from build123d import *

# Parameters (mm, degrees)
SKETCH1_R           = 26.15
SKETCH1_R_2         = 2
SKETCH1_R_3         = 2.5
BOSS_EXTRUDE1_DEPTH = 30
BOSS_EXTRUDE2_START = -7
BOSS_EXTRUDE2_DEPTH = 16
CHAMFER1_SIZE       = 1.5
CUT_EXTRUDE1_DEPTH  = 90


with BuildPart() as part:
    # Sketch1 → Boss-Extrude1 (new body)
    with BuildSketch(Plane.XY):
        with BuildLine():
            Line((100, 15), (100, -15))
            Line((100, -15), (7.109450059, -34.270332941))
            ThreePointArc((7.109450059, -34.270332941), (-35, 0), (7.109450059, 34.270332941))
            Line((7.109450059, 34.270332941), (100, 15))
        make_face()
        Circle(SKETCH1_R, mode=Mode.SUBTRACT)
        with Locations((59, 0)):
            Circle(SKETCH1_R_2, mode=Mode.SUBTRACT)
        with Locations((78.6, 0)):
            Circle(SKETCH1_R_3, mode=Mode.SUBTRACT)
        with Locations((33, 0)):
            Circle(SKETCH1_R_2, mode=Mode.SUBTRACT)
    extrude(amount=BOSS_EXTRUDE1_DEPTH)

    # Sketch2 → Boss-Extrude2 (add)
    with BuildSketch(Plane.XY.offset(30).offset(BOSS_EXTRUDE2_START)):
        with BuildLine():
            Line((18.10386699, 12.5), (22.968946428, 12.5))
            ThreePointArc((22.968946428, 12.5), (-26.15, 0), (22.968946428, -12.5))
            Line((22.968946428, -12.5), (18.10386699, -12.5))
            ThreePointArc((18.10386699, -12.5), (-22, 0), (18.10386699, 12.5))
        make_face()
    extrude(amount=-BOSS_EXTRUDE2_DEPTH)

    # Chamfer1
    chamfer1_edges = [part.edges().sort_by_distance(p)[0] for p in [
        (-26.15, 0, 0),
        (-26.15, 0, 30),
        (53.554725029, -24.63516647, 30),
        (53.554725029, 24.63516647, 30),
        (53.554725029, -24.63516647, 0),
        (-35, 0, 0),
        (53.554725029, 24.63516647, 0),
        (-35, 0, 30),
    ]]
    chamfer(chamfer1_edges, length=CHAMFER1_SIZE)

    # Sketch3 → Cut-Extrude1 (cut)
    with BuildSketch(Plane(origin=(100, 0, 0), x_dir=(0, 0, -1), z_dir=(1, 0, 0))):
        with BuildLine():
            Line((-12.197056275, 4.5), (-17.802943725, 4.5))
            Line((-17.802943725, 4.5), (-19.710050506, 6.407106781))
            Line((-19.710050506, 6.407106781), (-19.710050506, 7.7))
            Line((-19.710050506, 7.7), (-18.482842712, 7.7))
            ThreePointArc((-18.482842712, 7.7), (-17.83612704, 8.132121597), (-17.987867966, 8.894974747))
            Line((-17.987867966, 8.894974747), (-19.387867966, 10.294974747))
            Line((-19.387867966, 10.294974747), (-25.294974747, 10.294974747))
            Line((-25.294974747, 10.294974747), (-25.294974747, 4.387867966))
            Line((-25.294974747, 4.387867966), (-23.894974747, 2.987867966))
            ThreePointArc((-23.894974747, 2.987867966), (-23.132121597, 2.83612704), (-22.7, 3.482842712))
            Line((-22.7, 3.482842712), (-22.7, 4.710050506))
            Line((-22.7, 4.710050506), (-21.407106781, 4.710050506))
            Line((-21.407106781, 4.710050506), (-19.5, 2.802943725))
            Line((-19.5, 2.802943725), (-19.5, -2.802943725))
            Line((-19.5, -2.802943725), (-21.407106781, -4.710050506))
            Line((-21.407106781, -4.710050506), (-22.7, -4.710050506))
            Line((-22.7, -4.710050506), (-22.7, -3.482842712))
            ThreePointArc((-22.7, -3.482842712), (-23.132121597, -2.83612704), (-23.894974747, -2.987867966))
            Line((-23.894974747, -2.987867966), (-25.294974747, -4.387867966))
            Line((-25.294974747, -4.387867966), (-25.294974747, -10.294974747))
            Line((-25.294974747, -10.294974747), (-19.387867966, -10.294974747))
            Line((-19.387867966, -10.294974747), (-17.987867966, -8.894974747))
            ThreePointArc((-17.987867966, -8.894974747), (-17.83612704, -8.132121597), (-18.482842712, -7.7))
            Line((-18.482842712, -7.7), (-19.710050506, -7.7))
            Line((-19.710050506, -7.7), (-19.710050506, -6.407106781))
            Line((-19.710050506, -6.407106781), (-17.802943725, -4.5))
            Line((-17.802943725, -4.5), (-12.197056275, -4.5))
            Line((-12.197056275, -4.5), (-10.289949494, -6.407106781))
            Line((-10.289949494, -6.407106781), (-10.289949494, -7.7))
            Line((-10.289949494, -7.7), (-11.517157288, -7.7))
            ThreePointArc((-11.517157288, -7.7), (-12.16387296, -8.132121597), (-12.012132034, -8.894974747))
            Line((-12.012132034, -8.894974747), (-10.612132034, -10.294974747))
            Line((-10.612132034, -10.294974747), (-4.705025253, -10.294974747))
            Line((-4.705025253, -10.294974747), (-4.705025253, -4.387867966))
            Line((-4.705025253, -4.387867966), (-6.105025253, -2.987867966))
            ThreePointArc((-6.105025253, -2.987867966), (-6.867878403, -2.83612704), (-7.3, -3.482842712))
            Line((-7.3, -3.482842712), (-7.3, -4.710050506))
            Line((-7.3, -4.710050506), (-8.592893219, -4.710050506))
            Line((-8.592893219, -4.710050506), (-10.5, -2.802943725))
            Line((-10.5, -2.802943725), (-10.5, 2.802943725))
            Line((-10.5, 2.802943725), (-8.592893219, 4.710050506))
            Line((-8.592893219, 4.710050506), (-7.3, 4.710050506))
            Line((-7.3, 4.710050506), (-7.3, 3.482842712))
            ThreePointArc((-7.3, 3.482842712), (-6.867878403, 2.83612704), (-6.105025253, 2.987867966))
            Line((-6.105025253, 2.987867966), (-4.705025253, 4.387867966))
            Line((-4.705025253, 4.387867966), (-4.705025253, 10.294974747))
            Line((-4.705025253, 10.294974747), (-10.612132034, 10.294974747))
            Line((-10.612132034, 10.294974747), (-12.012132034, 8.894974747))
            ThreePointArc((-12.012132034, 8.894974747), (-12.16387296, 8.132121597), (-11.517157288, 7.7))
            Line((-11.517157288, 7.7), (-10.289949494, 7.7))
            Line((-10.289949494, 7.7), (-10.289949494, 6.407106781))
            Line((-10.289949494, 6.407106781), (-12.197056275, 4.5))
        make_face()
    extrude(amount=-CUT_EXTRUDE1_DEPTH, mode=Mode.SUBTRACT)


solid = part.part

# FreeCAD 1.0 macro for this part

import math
import FreeCAD as App
import Part
import Sketcher
from FreeCAD import Vector
Q = App.Units.Quantity


def edges_at(feature, points):
    """Names of the edges that pass closest to the given points."""
    edges = feature.Shape.Edges
    near = lambda p: min(range(len(edges)), key=lambda i: edges[i].distToShape(Part.Vertex(*p))[0])
    return sorted({f"Edge{near(p) + 1}" for p in points})

doc = App.newDocument("Part")
body = doc.addObject("PartDesign::Body", "Body")

sketch1 = doc.addObject("Sketcher::SketchObject", "Sketch")
body.addObject(sketch1)
sketch1.AttachmentSupport = (doc.XY_Plane, [""])
sketch1.MapMode = "FlatFace"
sketch1.addGeometry([
    Part.LineSegment(Vector(100, -15, 0), Vector(100, 15, 0)),
    Part.LineSegment(Vector(100, 15, 0), Vector(7.1, 34.3, 0)),
    Part.ArcOfCircle(Part.Circle(Vector(0, 0, 0), Vector(0, 0, 1), 35), math.radians(78), math.radians(282)),
    Part.LineSegment(Vector(7.1, -34.3, 0), Vector(100, -15, 0)),
    Part.Circle(Vector(78.6, 0, 0), Vector(0, 0, 1), 2.5),
    Part.Circle(Vector(59, 0, 0), Vector(0, 0, 1), 2),
    Part.Circle(Vector(33, 0, 0), Vector(0, 0, 1), 2),
    Part.Circle(Vector(0, 0, 0), Vector(0, 0, 1), 26.1),
], False)
sketch1.addConstraint([
    Sketcher.Constraint("Coincident", 0, 2, 1, 1),
    Sketcher.Constraint("Tangent", 1, 2, 2, 1),
    Sketcher.Constraint("Tangent", 2, 2, 3, 1),
    Sketcher.Constraint("Coincident", 3, 2, 0, 1),
    Sketcher.Constraint("Vertical", 0),
    Sketcher.Constraint("Coincident", 2, 3, -1, 1),
    Sketcher.Constraint("Coincident", 7, 3, -1, 1),
    Sketcher.Constraint("Equal", 5, 6),
    Sketcher.Constraint("PointOnObject", 4, 3, -1),
    Sketcher.Constraint("PointOnObject", 5, 3, -1),
    Sketcher.Constraint("PointOnObject", 6, 3, -1),
    Sketcher.Constraint("Vertical", 1, 2, 2, 2),
    Sketcher.Constraint("Diameter", 4, Q("5 mm")),
    Sketcher.Constraint("Diameter", 5, Q("4 mm")),
    Sketcher.Constraint("Radius", 2, Q("35 mm")),
    Sketcher.Constraint("Diameter", 7, Q("52.3 mm")),
    Sketcher.Constraint("DistanceY", 0, 1, 0, 2, Q("30 mm")),
    Sketcher.Constraint("DistanceX", -1, 1, 5, 3, Q("59 mm")),
    Sketcher.Constraint("DistanceX", -1, 1, 6, 3, Q("33 mm")),
    Sketcher.Constraint("DistanceX", -1, 1, 0, 2, Q("100 mm")),
    Sketcher.Constraint("DistanceX", -1, 1, 4, 3, Q("78.6 mm")),
])
pad1 = doc.addObject("PartDesign::Pad", "Pad")
body.addObject(pad1)
pad1.Profile = sketch1
pad1.Length = 30

sketch2 = doc.addObject("Sketcher::SketchObject", "Sketch001")
body.addObject(sketch2)
sketch2.AttachmentSupport = (doc.XY_Plane, [""])
sketch2.MapMode = "FlatFace"
sketch2.AttachmentOffset = App.Placement(Vector(0, 0, 23), App.Rotation())
sketch2.addGeometry([
    Part.LineSegment(Vector(18.1, 12.5, 0), Vector(23, 12.5, 0)),
    Part.ArcOfCircle(Part.Circle(Vector(0, 0, 0), Vector(0, 0, 1), 26.1), math.radians(29), math.radians(331)),
    Part.LineSegment(Vector(23, -12.5, 0), Vector(18.1, -12.5, 0)),
    Part.ArcOfCircle(Part.Circle(Vector(0, 0, 0), Vector(0, 0, 1), 22), math.radians(35), math.radians(325)),
], False)
sketch2.addConstraint([
    Sketcher.Constraint("Coincident", 0, 2, 1, 1),
    Sketcher.Constraint("Coincident", 1, 2, 2, 1),
    Sketcher.Constraint("Coincident", 2, 2, 3, 2),
    Sketcher.Constraint("Coincident", 3, 1, 0, 1),
    Sketcher.Constraint("Horizontal", 0),
    Sketcher.Constraint("Horizontal", 2),
    Sketcher.Constraint("Coincident", 1, 3, -1, 1),
    Sketcher.Constraint("Coincident", 3, 3, -1, 1),
    Sketcher.Constraint("Vertical", 0, 2, 1, 2),
    Sketcher.Constraint("Radius", 3, Q("22 mm")),
    Sketcher.Constraint("Radius", 1, Q("26.15 mm")),
    Sketcher.Constraint("DistanceY", 1, 2, 0, 2, Q("25 mm")),
])
pad2 = doc.addObject("PartDesign::Pad", "Pad001")
body.addObject(pad2)
pad2.Profile = sketch2
pad2.Length = 16
pad2.Reversed = True
doc.recompute()

chamfer = doc.addObject("PartDesign::Chamfer", "Chamfer")
body.addObject(chamfer)
chamfer.Base = (pad2, edges_at(pad2, [
    (-26.15, 0, 0),
    (-26.15, 0, 30),
    (53.555, -24.635, 30),
    (53.555, 24.635, 30),
    (53.555, -24.635, 0),
    (-35, 0, 0),
    (53.555, 24.635, 0),
    (-35, 0, 30),
]))
chamfer.Size = 1.5

sketch3 = doc.addObject("Sketcher::SketchObject", "Sketch002")
body.addObject(sketch3)
sketch3.AttachmentSupport = (doc.YZ_Plane, [""])
sketch3.MapMode = "FlatFace"
sketch3.AttachmentOffset = App.Placement(Vector(0, 0, 100), App.Rotation())
sketch3.addGeometry([
    Part.LineSegment(Vector(4.5, 12.2, 0), Vector(4.5, 17.8, 0)),
    Part.LineSegment(Vector(4.5, 17.8, 0), Vector(6.4, 19.7, 0)),
    Part.LineSegment(Vector(6.4, 19.7, 0), Vector(7.7, 19.7, 0)),
    Part.LineSegment(Vector(7.7, 19.7, 0), Vector(7.7, 18.5, 0)),
    Part.ArcOfCircle(Part.Circle(Vector(8.4, 18.5, 0), Vector(0, 0, 1), 0.7), math.radians(-180), math.radians(-45)),
    Part.LineSegment(Vector(8.9, 18, 0), Vector(10.3, 19.4, 0)),
    Part.LineSegment(Vector(10.3, 19.4, 0), Vector(10.3, 25.3, 0)),
    Part.LineSegment(Vector(10.3, 25.3, 0), Vector(4.4, 25.3, 0)),
    Part.LineSegment(Vector(4.4, 25.3, 0), Vector(3, 23.9, 0)),
    Part.ArcOfCircle(Part.Circle(Vector(3.5, 23.4, 0), Vector(0, 0, 1), 0.7), math.radians(135), math.radians(270)),
    Part.LineSegment(Vector(3.5, 22.7, 0), Vector(4.7, 22.7, 0)),
    Part.LineSegment(Vector(4.7, 22.7, 0), Vector(4.7, 21.4, 0)),
    Part.LineSegment(Vector(4.7, 21.4, 0), Vector(2.8, 19.5, 0)),
    Part.LineSegment(Vector(2.8, 19.5, 0), Vector(-2.8, 19.5, 0)),
    Part.LineSegment(Vector(-2.8, 19.5, 0), Vector(-4.7, 21.4, 0)),
    Part.LineSegment(Vector(-4.7, 21.4, 0), Vector(-4.7, 22.7, 0)),
    Part.LineSegment(Vector(-4.7, 22.7, 0), Vector(-3.5, 22.7, 0)),
    Part.ArcOfCircle(Part.Circle(Vector(-3.5, 23.4, 0), Vector(0, 0, 1), 0.7), math.radians(-90), math.radians(45)),
    Part.LineSegment(Vector(-3, 23.9, 0), Vector(-4.4, 25.3, 0)),
    Part.LineSegment(Vector(-4.4, 25.3, 0), Vector(-10.3, 25.3, 0)),
    Part.LineSegment(Vector(-10.3, 25.3, 0), Vector(-10.3, 19.4, 0)),
    Part.LineSegment(Vector(-10.3, 19.4, 0), Vector(-8.9, 18, 0)),
    Part.ArcOfCircle(Part.Circle(Vector(-8.4, 18.5, 0), Vector(0, 0, 1), 0.7), math.radians(-135), math.radians(0)),
    Part.LineSegment(Vector(-7.7, 18.5, 0), Vector(-7.7, 19.7, 0)),
    Part.LineSegment(Vector(-7.7, 19.7, 0), Vector(-6.4, 19.7, 0)),
    Part.LineSegment(Vector(-6.4, 19.7, 0), Vector(-4.5, 17.8, 0)),
    Part.LineSegment(Vector(-4.5, 17.8, 0), Vector(-4.5, 12.2, 0)),
    Part.LineSegment(Vector(-4.5, 12.2, 0), Vector(-6.4, 10.3, 0)),
    Part.LineSegment(Vector(-6.4, 10.3, 0), Vector(-7.7, 10.3, 0)),
    Part.LineSegment(Vector(-7.7, 10.3, 0), Vector(-7.7, 11.5, 0)),
    Part.ArcOfCircle(Part.Circle(Vector(-8.4, 11.5, 0), Vector(0, 0, 1), 0.7), math.radians(0), math.radians(135)),
    Part.LineSegment(Vector(-8.9, 12, 0), Vector(-10.3, 10.6, 0)),
    Part.LineSegment(Vector(-10.3, 10.6, 0), Vector(-10.3, 4.7, 0)),
    Part.LineSegment(Vector(-10.3, 4.7, 0), Vector(-4.4, 4.7, 0)),
    Part.LineSegment(Vector(-4.4, 4.7, 0), Vector(-3, 6.1, 0)),
    Part.ArcOfCircle(Part.Circle(Vector(-3.5, 6.6, 0), Vector(0, 0, 1), 0.7), math.radians(-45), math.radians(90)),
    Part.LineSegment(Vector(-3.5, 7.3, 0), Vector(-4.7, 7.3, 0)),
    Part.LineSegment(Vector(-4.7, 7.3, 0), Vector(-4.7, 8.6, 0)),
    Part.LineSegment(Vector(-4.7, 8.6, 0), Vector(-2.8, 10.5, 0)),
    Part.LineSegment(Vector(-2.8, 10.5, 0), Vector(2.8, 10.5, 0)),
    Part.LineSegment(Vector(2.8, 10.5, 0), Vector(4.7, 8.6, 0)),
    Part.LineSegment(Vector(4.7, 8.6, 0), Vector(4.7, 7.3, 0)),
    Part.LineSegment(Vector(4.7, 7.3, 0), Vector(3.5, 7.3, 0)),
    Part.ArcOfCircle(Part.Circle(Vector(3.5, 6.6, 0), Vector(0, 0, 1), 0.7), math.radians(90), math.radians(225)),
    Part.LineSegment(Vector(3, 6.1, 0), Vector(4.4, 4.7, 0)),
    Part.LineSegment(Vector(4.4, 4.7, 0), Vector(10.3, 4.7, 0)),
    Part.LineSegment(Vector(10.3, 4.7, 0), Vector(10.3, 10.6, 0)),
    Part.LineSegment(Vector(10.3, 10.6, 0), Vector(8.9, 12, 0)),
    Part.ArcOfCircle(Part.Circle(Vector(8.4, 11.5, 0), Vector(0, 0, 1), 0.7), math.radians(45), math.radians(180)),
    Part.LineSegment(Vector(7.7, 11.5, 0), Vector(7.7, 10.3, 0)),
    Part.LineSegment(Vector(7.7, 10.3, 0), Vector(6.4, 10.3, 0)),
    Part.LineSegment(Vector(6.4, 10.3, 0), Vector(4.5, 12.2, 0)),
], False)
sketch3.addConstraint([
    Sketcher.Constraint("Coincident", 0, 2, 1, 1),
    Sketcher.Constraint("Coincident", 1, 2, 2, 1),
    Sketcher.Constraint("Coincident", 2, 2, 3, 1),
    Sketcher.Constraint("Tangent", 3, 2, 4, 1),
    Sketcher.Constraint("Tangent", 4, 2, 5, 1),
    Sketcher.Constraint("Coincident", 5, 2, 6, 1),
    Sketcher.Constraint("Coincident", 6, 2, 7, 1),
    Sketcher.Constraint("Coincident", 7, 2, 8, 1),
    Sketcher.Constraint("Tangent", 8, 2, 9, 1),
    Sketcher.Constraint("Tangent", 9, 2, 10, 1),
    Sketcher.Constraint("Coincident", 10, 2, 11, 1),
    Sketcher.Constraint("Coincident", 11, 2, 12, 1),
    Sketcher.Constraint("Coincident", 12, 2, 13, 1),
    Sketcher.Constraint("Coincident", 13, 2, 14, 1),
    Sketcher.Constraint("Coincident", 14, 2, 15, 1),
    Sketcher.Constraint("Coincident", 15, 2, 16, 1),
    Sketcher.Constraint("Tangent", 16, 2, 17, 1),
    Sketcher.Constraint("Tangent", 17, 2, 18, 1),
    Sketcher.Constraint("Coincident", 18, 2, 19, 1),
    Sketcher.Constraint("Coincident", 19, 2, 20, 1),
    Sketcher.Constraint("Coincident", 20, 2, 21, 1),
    Sketcher.Constraint("Tangent", 21, 2, 22, 1),
    Sketcher.Constraint("Tangent", 22, 2, 23, 1),
    Sketcher.Constraint("Coincident", 23, 2, 24, 1),
    Sketcher.Constraint("Coincident", 24, 2, 25, 1),
    Sketcher.Constraint("Coincident", 25, 2, 26, 1),
    Sketcher.Constraint("Coincident", 26, 2, 27, 1),
    Sketcher.Constraint("Coincident", 27, 2, 28, 1),
    Sketcher.Constraint("Coincident", 28, 2, 29, 1),
    Sketcher.Constraint("Tangent", 29, 2, 30, 1),
    Sketcher.Constraint("Tangent", 30, 2, 31, 1),
    Sketcher.Constraint("Coincident", 31, 2, 32, 1),
    Sketcher.Constraint("Coincident", 32, 2, 33, 1),
    Sketcher.Constraint("Coincident", 33, 2, 34, 1),
    Sketcher.Constraint("Tangent", 34, 2, 35, 1),
    Sketcher.Constraint("Tangent", 35, 2, 36, 1),
    Sketcher.Constraint("Coincident", 36, 2, 37, 1),
    Sketcher.Constraint("Coincident", 37, 2, 38, 1),
    Sketcher.Constraint("Coincident", 38, 2, 39, 1),
    Sketcher.Constraint("Coincident", 39, 2, 40, 1),
    Sketcher.Constraint("Coincident", 40, 2, 41, 1),
    Sketcher.Constraint("Coincident", 41, 2, 42, 1),
    Sketcher.Constraint("Tangent", 42, 2, 43, 1),
    Sketcher.Constraint("Tangent", 43, 2, 44, 1),
    Sketcher.Constraint("Coincident", 44, 2, 45, 1),
    Sketcher.Constraint("Coincident", 45, 2, 46, 1),
    Sketcher.Constraint("Coincident", 46, 2, 47, 1),
    Sketcher.Constraint("Tangent", 47, 2, 48, 1),
    Sketcher.Constraint("Tangent", 48, 2, 49, 1),
    Sketcher.Constraint("Coincident", 49, 2, 50, 1),
    Sketcher.Constraint("Coincident", 50, 2, 51, 1),
    Sketcher.Constraint("Coincident", 51, 2, 0, 1),
    Sketcher.Constraint("Vertical", 0),
    Sketcher.Constraint("Horizontal", 2),
    Sketcher.Constraint("Vertical", 3),
    Sketcher.Constraint("Vertical", 6),
    Sketcher.Constraint("Horizontal", 7),
    Sketcher.Constraint("Horizontal", 10),
    Sketcher.Constraint("Vertical", 11),
    Sketcher.Constraint("Horizontal", 13),
    Sketcher.Constraint("Vertical", 15),
    Sketcher.Constraint("Horizontal", 16),
    Sketcher.Constraint("Horizontal", 19),
    Sketcher.Constraint("Vertical", 20),
    Sketcher.Constraint("Vertical", 23),
    Sketcher.Constraint("Horizontal", 24),
    Sketcher.Constraint("Vertical", 26),
    Sketcher.Constraint("Horizontal", 28),
    Sketcher.Constraint("Vertical", 29),
    Sketcher.Constraint("Vertical", 32),
    Sketcher.Constraint("Horizontal", 33),
    Sketcher.Constraint("Horizontal", 36),
    Sketcher.Constraint("Vertical", 37),
    Sketcher.Constraint("Horizontal", 39),
    Sketcher.Constraint("Vertical", 41),
    Sketcher.Constraint("Horizontal", 42),
    Sketcher.Constraint("Horizontal", 45),
    Sketcher.Constraint("Vertical", 46),
    Sketcher.Constraint("Vertical", 49),
    Sketcher.Constraint("Horizontal", 50),
    Sketcher.Constraint("Equal", 4, 9),
    Sketcher.Constraint("Equal", 9, 17),
    Sketcher.Constraint("Equal", 17, 22),
    Sketcher.Constraint("Equal", 22, 30),
    Sketcher.Constraint("Equal", 30, 35),
    Sketcher.Constraint("Equal", 35, 43),
    Sketcher.Constraint("Equal", 43, 48),
    Sketcher.Constraint("Symmetric", 9, 3, 17, 3, -2),
    Sketcher.Constraint("Symmetric", 4, 3, 22, 3, -2),
    Sketcher.Constraint("Symmetric", 35, 3, 43, 3, -2),
    Sketcher.Constraint("Symmetric", 30, 3, 48, 3, -2),
    Sketcher.Constraint("Symmetric", 11, 2, 14, 2, -2),
    Sketcher.Constraint("Symmetric", 7, 2, 18, 2, -2),
    Sketcher.Constraint("Symmetric", 5, 2, 20, 2, -2),
    Sketcher.Constraint("Symmetric", 1, 2, 24, 2, -2),
    Sketcher.Constraint("Symmetric", 0, 2, 25, 2, -2),
    Sketcher.Constraint("Symmetric", 37, 2, 40, 2, -2),
    Sketcher.Constraint("Symmetric", 33, 2, 44, 2, -2),
    Sketcher.Constraint("Symmetric", 31, 2, 46, 2, -2),
    Sketcher.Constraint("Symmetric", 27, 2, 50, 2, -2),
    Sketcher.Constraint("Parallel", 1, 5),
    Sketcher.Constraint("Parallel", 5, 8),
    Sketcher.Constraint("Parallel", 8, 12),
    Sketcher.Constraint("Perpendicular", 12, 14),
    Sketcher.Constraint("Parallel", 14, 18),
    Sketcher.Constraint("Perpendicular", 25, 27),
    Sketcher.Constraint("Parallel", 27, 31),
    Sketcher.Constraint("Parallel", 31, 34),
    Sketcher.Constraint("Parallel", 34, 38),
    Sketcher.Constraint("Perpendicular", 38, 40),
    Sketcher.Constraint("Parallel", 47, 51),
    Sketcher.Constraint("Vertical", 22, 3, 30, 3),
    Sketcher.Constraint("Vertical", 17, 3, 35, 3),
    Sketcher.Constraint("Vertical", 24, 2, 27, 2),
    Sketcher.Constraint("Vertical", 20, 2, 31, 2),
    Sketcher.Constraint("Vertical", 18, 2, 33, 2),
    Sketcher.Constraint("Vertical", 15, 2, 36, 2),
    Sketcher.Constraint("Vertical", 13, 2, 38, 2),
    Sketcher.Constraint("Equal", 39, 0),
    Sketcher.Constraint("Equal", 42, 3),
    Sketcher.Constraint("Equal", 45, 6),
    Sketcher.Constraint("Equal", 50, 11),
    Sketcher.Constraint("Equal", 23, 29),
    Sketcher.Constraint("Equal", 20, 32),
    Sketcher.Constraint("Equal", 15, 37),
    Sketcher.Constraint("Equal", 5, 8),
    Sketcher.Constraint("Equal", 1, 12),
    Sketcher.Constraint("Radius", 4, Q("0.7 mm")),
    Sketcher.Constraint("DistanceX", -1, 1, 4, 3, Q("8.4 mm")),
    Sketcher.Constraint("DistanceY", -1, 1, 9, 3, Q("23.4 mm")),
    Sketcher.Constraint("DistanceX", -1, 1, 0, 2, Q("4.5 mm")),
    Sketcher.Constraint("DistanceX", 4, 2, 5, 2, Q("1.4 mm")),
    Sketcher.Constraint("DistanceY", 0, 2, 4, 3, Q("0.679899 mm")),
    Sketcher.Constraint("DistanceX", 2, 1, 2, 2, Q("1.292893 mm")),
    Sketcher.Constraint("DistanceX", 7, 2, 7, 1, Q("5.907107 mm")),
])
pocket1 = doc.addObject("PartDesign::Pocket", "Pocket")
body.addObject(pocket1)
pocket1.Profile = sketch3
pocket1.Length = 90

doc.recompute()
